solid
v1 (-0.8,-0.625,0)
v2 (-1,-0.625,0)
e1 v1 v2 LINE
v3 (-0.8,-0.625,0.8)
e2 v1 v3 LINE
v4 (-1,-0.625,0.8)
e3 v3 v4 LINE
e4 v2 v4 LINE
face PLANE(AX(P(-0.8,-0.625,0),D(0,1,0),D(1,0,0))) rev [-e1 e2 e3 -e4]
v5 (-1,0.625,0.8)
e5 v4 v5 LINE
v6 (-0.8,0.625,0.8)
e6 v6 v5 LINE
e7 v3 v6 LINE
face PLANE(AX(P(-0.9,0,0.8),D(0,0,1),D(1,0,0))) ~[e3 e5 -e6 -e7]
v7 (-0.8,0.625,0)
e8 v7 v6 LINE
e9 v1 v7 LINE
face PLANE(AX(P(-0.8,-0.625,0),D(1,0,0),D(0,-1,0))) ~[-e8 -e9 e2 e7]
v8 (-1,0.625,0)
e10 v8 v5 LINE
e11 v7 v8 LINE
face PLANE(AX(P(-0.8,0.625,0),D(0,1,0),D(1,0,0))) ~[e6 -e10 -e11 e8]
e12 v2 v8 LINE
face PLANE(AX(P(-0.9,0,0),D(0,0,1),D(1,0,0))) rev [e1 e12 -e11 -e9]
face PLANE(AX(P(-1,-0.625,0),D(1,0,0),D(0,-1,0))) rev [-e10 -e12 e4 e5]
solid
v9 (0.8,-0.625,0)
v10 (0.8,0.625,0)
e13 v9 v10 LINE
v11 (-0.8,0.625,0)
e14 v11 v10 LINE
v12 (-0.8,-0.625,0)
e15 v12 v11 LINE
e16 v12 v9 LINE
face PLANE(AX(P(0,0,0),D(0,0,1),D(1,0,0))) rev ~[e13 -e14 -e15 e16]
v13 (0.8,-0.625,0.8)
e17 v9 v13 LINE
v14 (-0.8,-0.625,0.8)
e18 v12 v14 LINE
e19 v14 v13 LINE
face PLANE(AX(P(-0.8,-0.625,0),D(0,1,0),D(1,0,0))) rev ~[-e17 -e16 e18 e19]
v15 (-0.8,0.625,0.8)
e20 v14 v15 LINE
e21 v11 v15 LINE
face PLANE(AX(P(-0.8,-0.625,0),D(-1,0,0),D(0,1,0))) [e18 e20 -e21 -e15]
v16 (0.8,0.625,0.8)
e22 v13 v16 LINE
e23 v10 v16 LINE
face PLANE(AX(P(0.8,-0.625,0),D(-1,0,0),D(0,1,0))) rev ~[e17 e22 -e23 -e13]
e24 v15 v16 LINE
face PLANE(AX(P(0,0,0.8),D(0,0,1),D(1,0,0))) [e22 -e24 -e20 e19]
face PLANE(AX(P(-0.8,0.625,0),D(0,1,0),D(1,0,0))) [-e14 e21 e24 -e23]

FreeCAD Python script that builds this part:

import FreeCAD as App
import Part
import Sketcher
from FreeCAD import Vector


def add_polygon(sketch, points):
    """Adds a closed chain of lines whose ends are joined by coincident constraints."""
    first, n = sketch.GeometryCount, len(points)
    for a, b in zip(points, points[1:] + points[:1]):
        sketch.addGeometry(Part.LineSegment(App.Vector(*a, 0), App.Vector(*b, 0)), False)
    for i in range(n):
        sketch.addConstraint(Sketcher.Constraint("Coincident", first + i, 2, first + (i + 1) % n, 1))

doc = App.newDocument("Part")
body = doc.addObject("PartDesign::Body", "Body")

sketch1 = body.newObject("Sketcher::SketchObject", "Sketch")
sketch1.AttachmentSupport = (doc.getObject("XY_Plane"), [""])
sketch1.MapMode = "FlatFace"
add_polygon(sketch1, [(-0.8, 0.6), (-0.8, -0.6), (0.8, -0.6), (0.8, 0.6)])
sketch1.addConstraint(Sketcher.Constraint("Vertical", 0))
sketch1.addConstraint(Sketcher.Constraint("Horizontal", 1))
sketch1.addConstraint(Sketcher.Constraint("Vertical", 2))
sketch1.addConstraint(Sketcher.Constraint("Horizontal", 3))
sketch1.addConstraint(Sketcher.Constraint("Symmetric", 0, 2, 2, 2, -1, 1))
sketch1.addConstraint(Sketcher.Constraint("DistanceX", 1, 1, 1, 2, 1.6))
sketch1.addConstraint(Sketcher.Constraint("DistanceY", 0, 2, 0, 1, 1.25))
pad1 = body.newObject("PartDesign::Pad", "Pad")
pad1.Profile = sketch1
pad1.Length = 0.8
body2 = doc.addObject("PartDesign::Body", "Body001")

sketch2 = body2.newObject("Sketcher::SketchObject", "Sketch001")
sketch2.AttachmentSupport = (doc.getObject("XY_Plane001"), [""])
sketch2.MapMode = "FlatFace"
add_polygon(sketch2, [(0.8, 0.62), (0.8, -0.62), (1, -0.62), (1, 0.62)])
sketch2.addConstraint(Sketcher.Constraint("Vertical", 0))
sketch2.addConstraint(Sketcher.Constraint("Horizontal", 1))
sketch2.addConstraint(Sketcher.Constraint("Vertical", 2))
sketch2.addConstraint(Sketcher.Constraint("Horizontal", 3))
sketch2.addConstraint(Sketcher.Constraint("DistanceX", 1, 1, 1, 2, 0.2))
sketch2.addConstraint(Sketcher.Constraint("DistanceX", -1, 1, 1, 2, 1.0))
sketch2.addConstraint(Sketcher.Constraint("DistanceY", 0, 2, 0, 1, 1.25))
sketch2.addConstraint(Sketcher.Constraint("DistanceY", 0, 2, -1, 1, 0.625))
pad2 = body2.newObject("PartDesign::Pad", "Pad001")
pad2.Profile = sketch2
pad2.Length = 0.8
body3 = doc.addObject("PartDesign::Body", "Body002")
doc.recompute()

mirroring = doc.addObject("Part::Mirroring", "Mirroring")
mirroring.Source = body2
mirroring.Base = Vector(0, 0, 0)
mirroring.Normal = Vector(1, 0, 0)
body3.BaseFeature = mirroring
doc.recompute()
body2.Visibility = False
mirroring.Visibility = False

doc.recompute()
